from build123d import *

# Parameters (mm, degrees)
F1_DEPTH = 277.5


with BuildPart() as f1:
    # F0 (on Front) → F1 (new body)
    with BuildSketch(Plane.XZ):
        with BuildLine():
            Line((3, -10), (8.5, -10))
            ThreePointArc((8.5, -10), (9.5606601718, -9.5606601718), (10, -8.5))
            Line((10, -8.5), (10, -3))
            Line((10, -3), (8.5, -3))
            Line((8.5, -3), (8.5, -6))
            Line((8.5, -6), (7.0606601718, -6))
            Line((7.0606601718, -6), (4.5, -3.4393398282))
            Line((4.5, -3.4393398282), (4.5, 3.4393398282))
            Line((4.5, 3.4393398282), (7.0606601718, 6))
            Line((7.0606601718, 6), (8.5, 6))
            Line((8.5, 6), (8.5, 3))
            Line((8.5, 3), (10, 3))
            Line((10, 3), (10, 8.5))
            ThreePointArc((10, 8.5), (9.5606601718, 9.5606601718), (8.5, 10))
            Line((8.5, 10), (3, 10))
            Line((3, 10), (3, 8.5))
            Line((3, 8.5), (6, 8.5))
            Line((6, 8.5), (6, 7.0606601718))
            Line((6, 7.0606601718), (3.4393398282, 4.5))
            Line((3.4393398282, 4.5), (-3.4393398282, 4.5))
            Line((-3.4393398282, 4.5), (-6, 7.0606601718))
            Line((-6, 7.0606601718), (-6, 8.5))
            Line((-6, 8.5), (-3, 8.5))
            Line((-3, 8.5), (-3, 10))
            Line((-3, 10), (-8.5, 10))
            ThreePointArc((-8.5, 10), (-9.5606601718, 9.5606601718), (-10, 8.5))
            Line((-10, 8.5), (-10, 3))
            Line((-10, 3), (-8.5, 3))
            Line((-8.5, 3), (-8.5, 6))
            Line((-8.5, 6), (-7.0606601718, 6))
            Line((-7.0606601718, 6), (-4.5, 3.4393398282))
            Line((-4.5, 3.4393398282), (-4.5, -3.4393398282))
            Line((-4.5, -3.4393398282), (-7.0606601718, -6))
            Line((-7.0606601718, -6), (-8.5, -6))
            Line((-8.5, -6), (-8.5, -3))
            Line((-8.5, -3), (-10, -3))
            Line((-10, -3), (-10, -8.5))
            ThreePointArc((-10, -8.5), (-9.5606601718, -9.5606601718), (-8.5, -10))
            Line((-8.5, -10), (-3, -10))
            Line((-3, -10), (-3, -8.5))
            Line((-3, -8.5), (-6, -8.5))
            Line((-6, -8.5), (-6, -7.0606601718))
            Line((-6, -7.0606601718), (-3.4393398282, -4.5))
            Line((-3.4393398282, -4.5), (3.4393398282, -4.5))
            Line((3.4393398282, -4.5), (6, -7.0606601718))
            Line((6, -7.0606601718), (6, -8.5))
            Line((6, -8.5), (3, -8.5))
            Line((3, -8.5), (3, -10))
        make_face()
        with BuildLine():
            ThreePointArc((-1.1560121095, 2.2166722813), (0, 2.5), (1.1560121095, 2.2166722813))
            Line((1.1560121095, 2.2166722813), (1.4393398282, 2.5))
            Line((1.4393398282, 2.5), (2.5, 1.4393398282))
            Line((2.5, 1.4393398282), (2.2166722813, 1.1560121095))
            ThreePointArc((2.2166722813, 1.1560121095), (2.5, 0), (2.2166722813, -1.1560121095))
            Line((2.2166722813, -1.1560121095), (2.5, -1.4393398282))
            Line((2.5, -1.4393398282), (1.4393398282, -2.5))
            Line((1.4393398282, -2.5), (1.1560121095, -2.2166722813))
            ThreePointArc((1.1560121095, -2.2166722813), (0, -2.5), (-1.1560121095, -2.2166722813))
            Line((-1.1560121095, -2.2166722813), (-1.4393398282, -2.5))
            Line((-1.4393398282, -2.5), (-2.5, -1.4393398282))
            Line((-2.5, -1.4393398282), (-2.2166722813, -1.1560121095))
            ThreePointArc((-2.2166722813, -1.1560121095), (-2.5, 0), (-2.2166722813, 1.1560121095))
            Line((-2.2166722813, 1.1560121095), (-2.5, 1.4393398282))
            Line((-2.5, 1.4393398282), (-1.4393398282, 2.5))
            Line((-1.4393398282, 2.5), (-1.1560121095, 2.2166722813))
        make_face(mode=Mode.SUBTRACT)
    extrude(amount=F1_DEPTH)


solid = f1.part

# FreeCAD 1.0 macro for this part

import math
import FreeCAD as App
import Part
import Sketcher
from FreeCAD import Vector
Q = App.Units.Quantity

doc = App.newDocument("Part")
body = doc.addObject("PartDesign::Body", "Body")

sketch1 = body.newObject("Sketcher::SketchObject", "Sketch")
sketch1.AttachmentSupport = (doc.getObject("XZ_Plane"), [""])
sketch1.MapMode = "FlatFace"
sketch1.addGeometry([
    Part.LineSegment(Vector(3, -10, 0), Vector(8.5, -10, 0)),
    Part.ArcOfCircle(Part.Circle(Vector(8.5, -8.5, 0), Vector(0, 0, 1), 1.5), math.radians(-90), math.radians(0)),
    Part.LineSegment(Vector(10, -8.5, 0), Vector(10, -3, 0)),
    Part.LineSegment(Vector(10, -3, 0), Vector(8.5, -3, 0)),
    Part.LineSegment(Vector(8.5, -3, 0), Vector(8.5, -6, 0)),
    Part.LineSegment(Vector(8.5, -6, 0), Vector(7.06, -6, 0)),
    Part.LineSegment(Vector(7.06, -6, 0), Vector(4.5, -3.44, 0)),
    Part.LineSegment(Vector(4.5, -3.44, 0), Vector(4.5, 3.44, 0)),
    Part.LineSegment(Vector(4.5, 3.44, 0), Vector(7.06, 6, 0)),
    Part.LineSegment(Vector(7.06, 6, 0), Vector(8.5, 6, 0)),
    Part.LineSegment(Vector(8.5, 6, 0), Vector(8.5, 3, 0)),
    Part.LineSegment(Vector(8.5, 3, 0), Vector(10, 3, 0)),
    Part.LineSegment(Vector(10, 3, 0), Vector(10, 8.5, 0)),
    Part.ArcOfCircle(Part.Circle(Vector(8.5, 8.5, 0), Vector(0, 0, 1), 1.5), math.radians(0), math.radians(90)),
    Part.LineSegment(Vector(8.5, 10, 0), Vector(3, 10, 0)),
    Part.LineSegment(Vector(3, 10, 0), Vector(3, 8.5, 0)),
    Part.LineSegment(Vector(3, 8.5, 0), Vector(6, 8.5, 0)),
    Part.LineSegment(Vector(6, 8.5, 0), Vector(6, 7.06, 0)),
    Part.LineSegment(Vector(6, 7.06, 0), Vector(3.44, 4.5, 0)),
    Part.LineSegment(Vector(3.44, 4.5, 0), Vector(-3.44, 4.5, 0)),
    Part.LineSegment(Vector(-3.44, 4.5, 0), Vector(-6, 7.06, 0)),
    Part.LineSegment(Vector(-6, 7.06, 0), Vector(-6, 8.5, 0)),
    Part.LineSegment(Vector(-6, 8.5, 0), Vector(-3, 8.5, 0)),
    Part.LineSegment(Vector(-3, 8.5, 0), Vector(-3, 10, 0)),
    Part.LineSegment(Vector(-3, 10, 0), Vector(-8.5, 10, 0)),
    Part.ArcOfCircle(Part.Circle(Vector(-8.5, 8.5, 0), Vector(0, 0, 1), 1.5), math.radians(90), math.radians(180)),
    Part.LineSegment(Vector(-10, 8.5, 0), Vector(-10, 3, 0)),
    Part.LineSegment(Vector(-10, 3, 0), Vector(-8.5, 3, 0)),
    Part.LineSegment(Vector(-8.5, 3, 0), Vector(-8.5, 6, 0)),
    Part.LineSegment(Vector(-8.5, 6, 0), Vector(-7.06, 6, 0)),
    Part.LineSegment(Vector(-7.06, 6, 0), Vector(-4.5, 3.44, 0)),
    Part.LineSegment(Vector(-4.5, 3.44, 0), Vector(-4.5, -3.44, 0)),
    Part.LineSegment(Vector(-4.5, -3.44, 0), Vector(-7.06, -6, 0)),
    Part.LineSegment(Vector(-7.06, -6, 0), Vector(-8.5, -6, 0)),
    Part.LineSegment(Vector(-8.5, -6, 0), Vector(-8.5, -3, 0)),
    Part.LineSegment(Vector(-8.5, -3, 0), Vector(-10, -3, 0)),
    Part.LineSegment(Vector(-10, -3, 0), Vector(-10, -8.5, 0)),
    Part.ArcOfCircle(Part.Circle(Vector(-8.5, -8.5, 0), Vector(0, 0, 1), 1.5), math.radians(180), math.radians(270)),
    Part.LineSegment(Vector(-8.5, -10, 0), Vector(-3, -10, 0)),
    Part.LineSegment(Vector(-3, -10, 0), Vector(-3, -8.5, 0)),
    Part.LineSegment(Vector(-3, -8.5, 0), Vector(-6, -8.5, 0)),
    Part.LineSegment(Vector(-6, -8.5, 0), Vector(-6, -7.06, 0)),
    Part.LineSegment(Vector(-6, -7.06, 0), Vector(-3.44, -4.5, 0)),
    Part.LineSegment(Vector(-3.44, -4.5, 0), Vector(3.44, -4.5, 0)),
    Part.LineSegment(Vector(3.44, -4.5, 0), Vector(6, -7.06, 0)),
    Part.LineSegment(Vector(6, -7.06, 0), Vector(6, -8.5, 0)),
    Part.LineSegment(Vector(6, -8.5, 0), Vector(3, -8.5, 0)),
    Part.LineSegment(Vector(3, -8.5, 0), Vector(3, -10, 0)),
    Part.LineSegment(Vector(-1.44, 2.5, 0), Vector(-1.16, 2.22, 0)),
    Part.ArcOfCircle(Part.Circle(Vector(0, 0, 0), Vector(0, 0, 1), 2.5), math.radians(62), math.radians(118)),
    Part.LineSegment(Vector(1.16, 2.22, 0), Vector(1.44, 2.5, 0)),
    Part.LineSegment(Vector(1.44, 2.5, 0), Vector(2.5, 1.44, 0)),
    Part.LineSegment(Vector(2.5, 1.44, 0), Vector(2.22, 1.16, 0)),
    Part.ArcOfCircle(Part.Circle(Vector(0, 0, 0), Vector(0, 0, 1), 2.5), math.radians(-28), math.radians(28)),
    Part.LineSegment(Vector(2.22, -1.16, 0), Vector(2.5, -1.44, 0)),
    Part.LineSegment(Vector(2.5, -1.44, 0), Vector(1.44, -2.5, 0)),
    Part.LineSegment(Vector(1.44, -2.5, 0), Vector(1.16, -2.22, 0)),
    Part.ArcOfCircle(Part.Circle(Vector(0, 0, 0), Vector(0, 0, 1), 2.5), math.radians(-118), math.radians(-62)),
    Part.LineSegment(Vector(-1.16, -2.22, 0), Vector(-1.44, -2.5, 0)),
    Part.LineSegment(Vector(-1.44, -2.5, 0), Vector(-2.5, -1.44, 0)),
    Part.LineSegment(Vector(-2.5, -1.44, 0), Vector(-2.22, -1.16, 0)),
    Part.ArcOfCircle(Part.Circle(Vector(0, 0, 0), Vector(0, 0, 1), 2.5), math.radians(152), math.radians(208)),
    Part.LineSegment(Vector(-2.22, 1.16, 0), Vector(-2.5, 1.44, 0)),
    Part.LineSegment(Vector(-2.5, 1.44, 0), Vector(-1.44, 2.5, 0)),
], False)
sketch1.addConstraint([
    Sketcher.Constraint("Tangent", 0, 2, 1, 1),
    Sketcher.Constraint("Tangent", 1, 2, 2, 1),
    Sketcher.Constraint("Coincident", 2, 2, 3, 1),
    Sketcher.Constraint("Coincident", 3, 2, 4, 1),
    Sketcher.Constraint("Coincident", 4, 2, 5, 1),
    Sketcher.Constraint("Coincident", 5, 2, 6, 1),
    Sketcher.Constraint("Coincident", 6, 2, 7, 1),
    Sketcher.Constraint("Coincident", 7, 2, 8, 1),
    Sketcher.Constraint("Coincident", 8, 2, 9, 1),
    Sketcher.Constraint("Coincident", 9, 2, 10, 1),
    Sketcher.Constraint("Coincident", 10, 2, 11, 1),
    Sketcher.Constraint("Coincident", 11, 2, 12, 1),
    Sketcher.Constraint("Tangent", 12, 2, 13, 1),
    Sketcher.Constraint("Tangent", 13, 2, 14, 1),
    Sketcher.Constraint("Coincident", 14, 2, 15, 1),
    Sketcher.Constraint("Coincident", 15, 2, 16, 1),
    Sketcher.Constraint("Coincident", 16, 2, 17, 1),
    Sketcher.Constraint("Coincident", 17, 2, 18, 1),
    Sketcher.Constraint("Coincident", 18, 2, 19, 1),
    Sketcher.Constraint("Coincident", 19, 2, 20, 1),
    Sketcher.Constraint("Coincident", 20, 2, 21, 1),
    Sketcher.Constraint("Coincident", 21, 2, 22, 1),
    Sketcher.Constraint("Coincident", 22, 2, 23, 1),
    Sketcher.Constraint("Coincident", 23, 2, 24, 1),
    Sketcher.Constraint("Tangent", 24, 2, 25, 1),
    Sketcher.Constraint("Tangent", 25, 2, 26, 1),
    Sketcher.Constraint("Coincident", 26, 2, 27, 1),
    Sketcher.Constraint("Coincident", 27, 2, 28, 1),
    Sketcher.Constraint("Coincident", 28, 2, 29, 1),
    Sketcher.Constraint("Coincident", 29, 2, 30, 1),
    Sketcher.Constraint("Coincident", 30, 2, 31, 1),
    Sketcher.Constraint("Coincident", 31, 2, 32, 1),
    Sketcher.Constraint("Coincident", 32, 2, 33, 1),
    Sketcher.Constraint("Coincident", 33, 2, 34, 1),
    Sketcher.Constraint("Coincident", 34, 2, 35, 1),
    Sketcher.Constraint("Coincident", 35, 2, 36, 1),
    Sketcher.Constraint("Tangent", 36, 2, 37, 1),
    Sketcher.Constraint("Tangent", 37, 2, 38, 1),
    Sketcher.Constraint("Coincident", 38, 2, 39, 1),
    Sketcher.Constraint("Coincident", 39, 2, 40, 1),
    Sketcher.Constraint("Coincident", 40, 2, 41, 1),
    Sketcher.Constraint("Coincident", 41, 2, 42, 1),
    Sketcher.Constraint("Coincident", 42, 2, 43, 1),
    Sketcher.Constraint("Coincident", 43, 2, 44, 1),
    Sketcher.Constraint("Coincident", 44, 2, 45, 1),
    Sketcher.Constraint("Coincident", 45, 2, 46, 1),
    Sketcher.Constraint("Coincident", 46, 2, 47, 1),
    Sketcher.Constraint("Coincident", 47, 2, 0, 1),
    Sketcher.Constraint("Coincident", 48, 2, 49, 2),
    Sketcher.Constraint("Coincident", 49, 1, 50, 1),
    Sketcher.Constraint("Coincident", 50, 2, 51, 1),
    Sketcher.Constraint("Coincident", 51, 2, 52, 1),
    Sketcher.Constraint("Coincident", 52, 2, 53, 2),
    Sketcher.Constraint("Coincident", 53, 1, 54, 1),
    Sketcher.Constraint("Coincident", 54, 2, 55, 1),
    Sketcher.Constraint("Coincident", 55, 2, 56, 1),
    Sketcher.Constraint("Coincident", 56, 2, 57, 2),
    Sketcher.Constraint("Coincident", 57, 1, 58, 1),
    Sketcher.Constraint("Coincident", 58, 2, 59, 1),
    Sketcher.Constraint("Coincident", 59, 2, 60, 1),
    Sketcher.Constraint("Coincident", 60, 2, 61, 2),
    Sketcher.Constraint("Coincident", 61, 1, 62, 1),
    Sketcher.Constraint("Coincident", 62, 2, 63, 1),
    Sketcher.Constraint("Coincident", 63, 2, 48, 1),
    Sketcher.Constraint("Horizontal", 0),
    Sketcher.Constraint("Vertical", 2),
    Sketcher.Constraint("Horizontal", 3),
    Sketcher.Constraint("Vertical", 4),
    Sketcher.Constraint("Horizontal", 5),
    Sketcher.Constraint("Vertical", 7),
    Sketcher.Constraint("Horizontal", 9),
    Sketcher.Constraint("Vertical", 10),
    Sketcher.Constraint("Horizontal", 11),
    Sketcher.Constraint("Vertical", 12),
    Sketcher.Constraint("Horizontal", 14),
    Sketcher.Constraint("Vertical", 15),
    Sketcher.Constraint("Horizontal", 16),
    Sketcher.Constraint("Vertical", 17),
    Sketcher.Constraint("Horizontal", 19),
    Sketcher.Constraint("Vertical", 21),
    Sketcher.Constraint("Horizontal", 22),
    Sketcher.Constraint("Vertical", 23),
    Sketcher.Constraint("Horizontal", 24),
    Sketcher.Constraint("Vertical", 26),
    Sketcher.Constraint("Horizontal", 27),
    Sketcher.Constraint("Vertical", 28),
    Sketcher.Constraint("Horizontal", 29),
    Sketcher.Constraint("Vertical", 31),
    Sketcher.Constraint("Horizontal", 33),
    Sketcher.Constraint("Vertical", 34),
    Sketcher.Constraint("Horizontal", 35),
    Sketcher.Constraint("Vertical", 36),
    Sketcher.Constraint("Horizontal", 38),
    Sketcher.Constraint("Vertical", 39),
    Sketcher.Constraint("Horizontal", 40),
    Sketcher.Constraint("Vertical", 41),
    Sketcher.Constraint("Horizontal", 43),
    Sketcher.Constraint("Vertical", 45),
    Sketcher.Constraint("Horizontal", 46),
    Sketcher.Constraint("Vertical", 47),
    Sketcher.Constraint("Coincident", 49, 3, -1, 1),
    Sketcher.Constraint("Coincident", 53, 3, -1, 1),
    Sketcher.Constraint("Coincident", 57, 3, -1, 1),
    Sketcher.Constraint("Coincident", 61, 3, -1, 1),
    Sketcher.Constraint("Equal", 1, 13),
    Sketcher.Constraint("Equal", 13, 25),
    Sketcher.Constraint("Equal", 25, 37),
    Sketcher.Constraint("Equal", 49, 53),
    Sketcher.Constraint("Equal", 53, 57),
    Sketcher.Constraint("Equal", 57, 61),
    Sketcher.Constraint("Symmetric", 1, 3, 25, 3, -1, 1),
    Sketcher.Constraint("Symmetric", 13, 3, 37, 3, -1, 1),
    Sketcher.Constraint("Symmetric", 3, 2, 27, 2, -1, 1),
    Sketcher.Constraint("Symmetric", 5, 2, 29, 2, -1, 1),
    Sketcher.Constraint("Symmetric", 6, 2, 30, 2, -1, 1),
    Sketcher.Constraint("Symmetric", 8, 2, 32, 2, -1, 1),
    Sketcher.Constraint("Symmetric", 10, 2, 34, 2, -1, 1),
    Sketcher.Constraint("Symmetric", 15, 2, 39, 2, -1, 1),
    Sketcher.Constraint("Symmetric", 17, 2, 41, 2, -1, 1),
    Sketcher.Constraint("Symmetric", 18, 2, 42, 2, -1, 1),
    Sketcher.Constraint("Symmetric", 20, 2, 44, 2, -1, 1),
    Sketcher.Constraint("Symmetric", 22, 2, 46, 2, -1, 1),
    Sketcher.Constraint("Symmetric", 50, 2, 58, 2, -1, 1),
    Sketcher.Constraint("Symmetric", 51, 2, 59, 2, -1, 1),
    Sketcher.Constraint("Symmetric", 54, 2, 62, 2, -1, 1),
    Sketcher.Constraint("Symmetric", 55, 2, 63, 2, -1, 1),
    Sketcher.Constraint("Symmetric", 13, 3, 25, 3, -2),
    Sketcher.Constraint("Symmetric", 17, 2, 20, 2, -2),
    Sketcher.Constraint("Symmetric", 15, 2, 22, 2, -2),
    Sketcher.Constraint("Symmetric", 10, 2, 27, 2, -2),
    Sketcher.Constraint("Symmetric", 8, 2, 29, 2, -2),
    Sketcher.Constraint("Symmetric", 55, 2, 58, 2, -2),
    Sketcher.Constraint("Symmetric", 54, 2, 59, 2, -2),
    Sketcher.Constraint("Perpendicular", 6, 8),
    Sketcher.Constraint("Parallel", 8, 18),
    Sketcher.Constraint("Perpendicular", 18, 20),
    Sketcher.Constraint("Perpendicular", 30, 32),
    Sketcher.Constraint("Perpendicular", 42, 44),
    Sketcher.Constraint("Parallel", 44, 48),
    Sketcher.Constraint("Perpendicular", 48, 50),
    Sketcher.Constraint("Perpendicular", 50, 51),
    Sketcher.Constraint("Perpendicular", 51, 52),
    Sketcher.Constraint("Perpendicular", 52, 54),
    Sketcher.Constraint("Perpendicular", 54, 55),
    Sketcher.Constraint("Perpendicular", 55, 56),
    Sketcher.Constraint("Perpendicular", 56, 58),
    Sketcher.Constraint("Perpendicular", 59, 60),
    Sketcher.Constraint("Perpendicular", 60, 62),
    Sketcher.Constraint("Horizontal", 12, 2, 15, 2),
    Sketcher.Constraint("Vertical", 0, 2, 3, 2),
    Sketcher.Constraint("Equal", 38, 2),
    Sketcher.Constraint("Equal", 46, 4),
    Sketcher.Constraint("Equal", 43, 7),
    Sketcher.Constraint("Equal", 33, 17),
    Sketcher.Constraint("Equal", 8, 18),
    Sketcher.Constraint("Equal", 50, 52),
    Sketcher.Constraint("Radius", 1, Q("1.5 mm")),
    Sketcher.Constraint("Radius", 49, Q("2.5 mm")),
    Sketcher.Constraint("DistanceX", 16, 1, 16, 2, Q("3 mm")),
    Sketcher.Constraint("DistanceX", 0, 1, 0, 2, Q("5.5 mm")),
    Sketcher.Constraint("DistanceY", 0, 2, -1, 1, Q("10 mm")),
    Sketcher.Constraint("Distance", 51, Q("1.5 mm")),
    Sketcher.Constraint("DistanceX", -1, 1, 6, 2, Q("4.5 mm")),
    Sketcher.Constraint("DistanceY", -1, 1, 50, 2, Q("2.5 mm")),
    Sketcher.Constraint("DistanceX", 5, 2, 5, 1, Q("1.43934 mm")),
])
pad1 = body.newObject("PartDesign::Pad", "Pad")
pad1.Profile = sketch1
pad1.Length = 277.5

doc.recompute()
